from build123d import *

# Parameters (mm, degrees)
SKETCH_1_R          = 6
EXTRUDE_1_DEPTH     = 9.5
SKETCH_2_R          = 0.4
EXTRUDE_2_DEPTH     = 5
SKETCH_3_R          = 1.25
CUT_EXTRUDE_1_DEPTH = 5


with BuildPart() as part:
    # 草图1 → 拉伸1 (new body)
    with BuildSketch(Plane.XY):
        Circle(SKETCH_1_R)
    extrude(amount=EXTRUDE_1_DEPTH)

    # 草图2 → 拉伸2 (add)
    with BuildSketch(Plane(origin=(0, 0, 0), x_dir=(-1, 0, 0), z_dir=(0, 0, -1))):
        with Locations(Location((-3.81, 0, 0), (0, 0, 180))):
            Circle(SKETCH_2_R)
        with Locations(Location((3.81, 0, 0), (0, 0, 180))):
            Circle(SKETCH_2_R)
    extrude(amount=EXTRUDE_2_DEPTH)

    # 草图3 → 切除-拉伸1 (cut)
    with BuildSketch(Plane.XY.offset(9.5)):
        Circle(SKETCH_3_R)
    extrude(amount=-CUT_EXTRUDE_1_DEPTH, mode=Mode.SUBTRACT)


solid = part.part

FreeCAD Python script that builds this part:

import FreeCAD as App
import Part
import Sketcher

V = App.Vector
Q = App.Units.Quantity

doc = App.newDocument("Part")
body = doc.addObject("PartDesign::Body", "Body")

# Sketch on XY plane
sketch1 = body.newObject("Sketcher::SketchObject", "Sketch")
sketch1.AttachmentSupport = (doc.getObject("XY_Plane"), [""])
sketch1.MapMode = "FlatFace"
sketch1.addGeometry(Part.Circle(V(0, 0, 0), V(0, 0, 1), 6), False)
sketch1.addConstraint(Sketcher.Constraint("Coincident", 0, 3, -1, 1))
sketch1.addConstraint(Sketcher.Constraint("Diameter", 0, Q("12 mm")))
pad1 = body.newObject("PartDesign::Pad", "Pad")
pad1.Profile = sketch1
pad1.Length = 9.5

# Sketch on XY plane
sketch2 = body.newObject("Sketcher::SketchObject", "Sketch001")
sketch2.AttachmentSupport = (doc.getObject("XY_Plane"), [""])
sketch2.MapMode = "FlatFace"
sketch2.addGeometry(Part.Circle(V(3.81, 0, 0), V(0, 0, 1), 0.4), False)
sketch2.addGeometry(Part.Circle(V(-3.81, 0, 0), V(0, 0, 1), 0.4), False)
sketch2.addConstraint(Sketcher.Constraint("Equal", 0, 1))
sketch2.addConstraint(Sketcher.Constraint("Symmetric", 0, 3, 1, 3, -1, 1))
sketch2.addConstraint(Sketcher.Constraint("PointOnObject", 0, 3, -1))
sketch2.addConstraint(Sketcher.Constraint("Diameter", 0, Q("0.8 mm")))
sketch2.addConstraint(Sketcher.Constraint("DistanceX", -1, 1, 0, 3, Q("3.81 mm")))
pad2 = body.newObject("PartDesign::Pad", "Pad001")
pad2.Profile = sketch2
pad2.Length = 5
pad2.Reversed = True

# Sketch on XY plane
sketch3 = body.newObject("Sketcher::SketchObject", "Sketch002")
sketch3.AttachmentSupport = (doc.getObject("XY_Plane"), [""])
sketch3.MapMode = "FlatFace"
sketch3.AttachmentOffset = App.Placement(V(0, 0, 9.5), App.Rotation())
sketch3.addGeometry(Part.Circle(V(0, 0, 0), V(0, 0, 1), 1.2), False)
sketch3.addConstraint(Sketcher.Constraint("Coincident", 0, 3, -1, 1))
sketch3.addConstraint(Sketcher.Constraint("Diameter", 0, Q("2.5 mm")))
pocket1 = body.newObject("PartDesign::Pocket", "Pocket")
pocket1.Profile = sketch3
pocket1.Length = 5

doc.recompute()
